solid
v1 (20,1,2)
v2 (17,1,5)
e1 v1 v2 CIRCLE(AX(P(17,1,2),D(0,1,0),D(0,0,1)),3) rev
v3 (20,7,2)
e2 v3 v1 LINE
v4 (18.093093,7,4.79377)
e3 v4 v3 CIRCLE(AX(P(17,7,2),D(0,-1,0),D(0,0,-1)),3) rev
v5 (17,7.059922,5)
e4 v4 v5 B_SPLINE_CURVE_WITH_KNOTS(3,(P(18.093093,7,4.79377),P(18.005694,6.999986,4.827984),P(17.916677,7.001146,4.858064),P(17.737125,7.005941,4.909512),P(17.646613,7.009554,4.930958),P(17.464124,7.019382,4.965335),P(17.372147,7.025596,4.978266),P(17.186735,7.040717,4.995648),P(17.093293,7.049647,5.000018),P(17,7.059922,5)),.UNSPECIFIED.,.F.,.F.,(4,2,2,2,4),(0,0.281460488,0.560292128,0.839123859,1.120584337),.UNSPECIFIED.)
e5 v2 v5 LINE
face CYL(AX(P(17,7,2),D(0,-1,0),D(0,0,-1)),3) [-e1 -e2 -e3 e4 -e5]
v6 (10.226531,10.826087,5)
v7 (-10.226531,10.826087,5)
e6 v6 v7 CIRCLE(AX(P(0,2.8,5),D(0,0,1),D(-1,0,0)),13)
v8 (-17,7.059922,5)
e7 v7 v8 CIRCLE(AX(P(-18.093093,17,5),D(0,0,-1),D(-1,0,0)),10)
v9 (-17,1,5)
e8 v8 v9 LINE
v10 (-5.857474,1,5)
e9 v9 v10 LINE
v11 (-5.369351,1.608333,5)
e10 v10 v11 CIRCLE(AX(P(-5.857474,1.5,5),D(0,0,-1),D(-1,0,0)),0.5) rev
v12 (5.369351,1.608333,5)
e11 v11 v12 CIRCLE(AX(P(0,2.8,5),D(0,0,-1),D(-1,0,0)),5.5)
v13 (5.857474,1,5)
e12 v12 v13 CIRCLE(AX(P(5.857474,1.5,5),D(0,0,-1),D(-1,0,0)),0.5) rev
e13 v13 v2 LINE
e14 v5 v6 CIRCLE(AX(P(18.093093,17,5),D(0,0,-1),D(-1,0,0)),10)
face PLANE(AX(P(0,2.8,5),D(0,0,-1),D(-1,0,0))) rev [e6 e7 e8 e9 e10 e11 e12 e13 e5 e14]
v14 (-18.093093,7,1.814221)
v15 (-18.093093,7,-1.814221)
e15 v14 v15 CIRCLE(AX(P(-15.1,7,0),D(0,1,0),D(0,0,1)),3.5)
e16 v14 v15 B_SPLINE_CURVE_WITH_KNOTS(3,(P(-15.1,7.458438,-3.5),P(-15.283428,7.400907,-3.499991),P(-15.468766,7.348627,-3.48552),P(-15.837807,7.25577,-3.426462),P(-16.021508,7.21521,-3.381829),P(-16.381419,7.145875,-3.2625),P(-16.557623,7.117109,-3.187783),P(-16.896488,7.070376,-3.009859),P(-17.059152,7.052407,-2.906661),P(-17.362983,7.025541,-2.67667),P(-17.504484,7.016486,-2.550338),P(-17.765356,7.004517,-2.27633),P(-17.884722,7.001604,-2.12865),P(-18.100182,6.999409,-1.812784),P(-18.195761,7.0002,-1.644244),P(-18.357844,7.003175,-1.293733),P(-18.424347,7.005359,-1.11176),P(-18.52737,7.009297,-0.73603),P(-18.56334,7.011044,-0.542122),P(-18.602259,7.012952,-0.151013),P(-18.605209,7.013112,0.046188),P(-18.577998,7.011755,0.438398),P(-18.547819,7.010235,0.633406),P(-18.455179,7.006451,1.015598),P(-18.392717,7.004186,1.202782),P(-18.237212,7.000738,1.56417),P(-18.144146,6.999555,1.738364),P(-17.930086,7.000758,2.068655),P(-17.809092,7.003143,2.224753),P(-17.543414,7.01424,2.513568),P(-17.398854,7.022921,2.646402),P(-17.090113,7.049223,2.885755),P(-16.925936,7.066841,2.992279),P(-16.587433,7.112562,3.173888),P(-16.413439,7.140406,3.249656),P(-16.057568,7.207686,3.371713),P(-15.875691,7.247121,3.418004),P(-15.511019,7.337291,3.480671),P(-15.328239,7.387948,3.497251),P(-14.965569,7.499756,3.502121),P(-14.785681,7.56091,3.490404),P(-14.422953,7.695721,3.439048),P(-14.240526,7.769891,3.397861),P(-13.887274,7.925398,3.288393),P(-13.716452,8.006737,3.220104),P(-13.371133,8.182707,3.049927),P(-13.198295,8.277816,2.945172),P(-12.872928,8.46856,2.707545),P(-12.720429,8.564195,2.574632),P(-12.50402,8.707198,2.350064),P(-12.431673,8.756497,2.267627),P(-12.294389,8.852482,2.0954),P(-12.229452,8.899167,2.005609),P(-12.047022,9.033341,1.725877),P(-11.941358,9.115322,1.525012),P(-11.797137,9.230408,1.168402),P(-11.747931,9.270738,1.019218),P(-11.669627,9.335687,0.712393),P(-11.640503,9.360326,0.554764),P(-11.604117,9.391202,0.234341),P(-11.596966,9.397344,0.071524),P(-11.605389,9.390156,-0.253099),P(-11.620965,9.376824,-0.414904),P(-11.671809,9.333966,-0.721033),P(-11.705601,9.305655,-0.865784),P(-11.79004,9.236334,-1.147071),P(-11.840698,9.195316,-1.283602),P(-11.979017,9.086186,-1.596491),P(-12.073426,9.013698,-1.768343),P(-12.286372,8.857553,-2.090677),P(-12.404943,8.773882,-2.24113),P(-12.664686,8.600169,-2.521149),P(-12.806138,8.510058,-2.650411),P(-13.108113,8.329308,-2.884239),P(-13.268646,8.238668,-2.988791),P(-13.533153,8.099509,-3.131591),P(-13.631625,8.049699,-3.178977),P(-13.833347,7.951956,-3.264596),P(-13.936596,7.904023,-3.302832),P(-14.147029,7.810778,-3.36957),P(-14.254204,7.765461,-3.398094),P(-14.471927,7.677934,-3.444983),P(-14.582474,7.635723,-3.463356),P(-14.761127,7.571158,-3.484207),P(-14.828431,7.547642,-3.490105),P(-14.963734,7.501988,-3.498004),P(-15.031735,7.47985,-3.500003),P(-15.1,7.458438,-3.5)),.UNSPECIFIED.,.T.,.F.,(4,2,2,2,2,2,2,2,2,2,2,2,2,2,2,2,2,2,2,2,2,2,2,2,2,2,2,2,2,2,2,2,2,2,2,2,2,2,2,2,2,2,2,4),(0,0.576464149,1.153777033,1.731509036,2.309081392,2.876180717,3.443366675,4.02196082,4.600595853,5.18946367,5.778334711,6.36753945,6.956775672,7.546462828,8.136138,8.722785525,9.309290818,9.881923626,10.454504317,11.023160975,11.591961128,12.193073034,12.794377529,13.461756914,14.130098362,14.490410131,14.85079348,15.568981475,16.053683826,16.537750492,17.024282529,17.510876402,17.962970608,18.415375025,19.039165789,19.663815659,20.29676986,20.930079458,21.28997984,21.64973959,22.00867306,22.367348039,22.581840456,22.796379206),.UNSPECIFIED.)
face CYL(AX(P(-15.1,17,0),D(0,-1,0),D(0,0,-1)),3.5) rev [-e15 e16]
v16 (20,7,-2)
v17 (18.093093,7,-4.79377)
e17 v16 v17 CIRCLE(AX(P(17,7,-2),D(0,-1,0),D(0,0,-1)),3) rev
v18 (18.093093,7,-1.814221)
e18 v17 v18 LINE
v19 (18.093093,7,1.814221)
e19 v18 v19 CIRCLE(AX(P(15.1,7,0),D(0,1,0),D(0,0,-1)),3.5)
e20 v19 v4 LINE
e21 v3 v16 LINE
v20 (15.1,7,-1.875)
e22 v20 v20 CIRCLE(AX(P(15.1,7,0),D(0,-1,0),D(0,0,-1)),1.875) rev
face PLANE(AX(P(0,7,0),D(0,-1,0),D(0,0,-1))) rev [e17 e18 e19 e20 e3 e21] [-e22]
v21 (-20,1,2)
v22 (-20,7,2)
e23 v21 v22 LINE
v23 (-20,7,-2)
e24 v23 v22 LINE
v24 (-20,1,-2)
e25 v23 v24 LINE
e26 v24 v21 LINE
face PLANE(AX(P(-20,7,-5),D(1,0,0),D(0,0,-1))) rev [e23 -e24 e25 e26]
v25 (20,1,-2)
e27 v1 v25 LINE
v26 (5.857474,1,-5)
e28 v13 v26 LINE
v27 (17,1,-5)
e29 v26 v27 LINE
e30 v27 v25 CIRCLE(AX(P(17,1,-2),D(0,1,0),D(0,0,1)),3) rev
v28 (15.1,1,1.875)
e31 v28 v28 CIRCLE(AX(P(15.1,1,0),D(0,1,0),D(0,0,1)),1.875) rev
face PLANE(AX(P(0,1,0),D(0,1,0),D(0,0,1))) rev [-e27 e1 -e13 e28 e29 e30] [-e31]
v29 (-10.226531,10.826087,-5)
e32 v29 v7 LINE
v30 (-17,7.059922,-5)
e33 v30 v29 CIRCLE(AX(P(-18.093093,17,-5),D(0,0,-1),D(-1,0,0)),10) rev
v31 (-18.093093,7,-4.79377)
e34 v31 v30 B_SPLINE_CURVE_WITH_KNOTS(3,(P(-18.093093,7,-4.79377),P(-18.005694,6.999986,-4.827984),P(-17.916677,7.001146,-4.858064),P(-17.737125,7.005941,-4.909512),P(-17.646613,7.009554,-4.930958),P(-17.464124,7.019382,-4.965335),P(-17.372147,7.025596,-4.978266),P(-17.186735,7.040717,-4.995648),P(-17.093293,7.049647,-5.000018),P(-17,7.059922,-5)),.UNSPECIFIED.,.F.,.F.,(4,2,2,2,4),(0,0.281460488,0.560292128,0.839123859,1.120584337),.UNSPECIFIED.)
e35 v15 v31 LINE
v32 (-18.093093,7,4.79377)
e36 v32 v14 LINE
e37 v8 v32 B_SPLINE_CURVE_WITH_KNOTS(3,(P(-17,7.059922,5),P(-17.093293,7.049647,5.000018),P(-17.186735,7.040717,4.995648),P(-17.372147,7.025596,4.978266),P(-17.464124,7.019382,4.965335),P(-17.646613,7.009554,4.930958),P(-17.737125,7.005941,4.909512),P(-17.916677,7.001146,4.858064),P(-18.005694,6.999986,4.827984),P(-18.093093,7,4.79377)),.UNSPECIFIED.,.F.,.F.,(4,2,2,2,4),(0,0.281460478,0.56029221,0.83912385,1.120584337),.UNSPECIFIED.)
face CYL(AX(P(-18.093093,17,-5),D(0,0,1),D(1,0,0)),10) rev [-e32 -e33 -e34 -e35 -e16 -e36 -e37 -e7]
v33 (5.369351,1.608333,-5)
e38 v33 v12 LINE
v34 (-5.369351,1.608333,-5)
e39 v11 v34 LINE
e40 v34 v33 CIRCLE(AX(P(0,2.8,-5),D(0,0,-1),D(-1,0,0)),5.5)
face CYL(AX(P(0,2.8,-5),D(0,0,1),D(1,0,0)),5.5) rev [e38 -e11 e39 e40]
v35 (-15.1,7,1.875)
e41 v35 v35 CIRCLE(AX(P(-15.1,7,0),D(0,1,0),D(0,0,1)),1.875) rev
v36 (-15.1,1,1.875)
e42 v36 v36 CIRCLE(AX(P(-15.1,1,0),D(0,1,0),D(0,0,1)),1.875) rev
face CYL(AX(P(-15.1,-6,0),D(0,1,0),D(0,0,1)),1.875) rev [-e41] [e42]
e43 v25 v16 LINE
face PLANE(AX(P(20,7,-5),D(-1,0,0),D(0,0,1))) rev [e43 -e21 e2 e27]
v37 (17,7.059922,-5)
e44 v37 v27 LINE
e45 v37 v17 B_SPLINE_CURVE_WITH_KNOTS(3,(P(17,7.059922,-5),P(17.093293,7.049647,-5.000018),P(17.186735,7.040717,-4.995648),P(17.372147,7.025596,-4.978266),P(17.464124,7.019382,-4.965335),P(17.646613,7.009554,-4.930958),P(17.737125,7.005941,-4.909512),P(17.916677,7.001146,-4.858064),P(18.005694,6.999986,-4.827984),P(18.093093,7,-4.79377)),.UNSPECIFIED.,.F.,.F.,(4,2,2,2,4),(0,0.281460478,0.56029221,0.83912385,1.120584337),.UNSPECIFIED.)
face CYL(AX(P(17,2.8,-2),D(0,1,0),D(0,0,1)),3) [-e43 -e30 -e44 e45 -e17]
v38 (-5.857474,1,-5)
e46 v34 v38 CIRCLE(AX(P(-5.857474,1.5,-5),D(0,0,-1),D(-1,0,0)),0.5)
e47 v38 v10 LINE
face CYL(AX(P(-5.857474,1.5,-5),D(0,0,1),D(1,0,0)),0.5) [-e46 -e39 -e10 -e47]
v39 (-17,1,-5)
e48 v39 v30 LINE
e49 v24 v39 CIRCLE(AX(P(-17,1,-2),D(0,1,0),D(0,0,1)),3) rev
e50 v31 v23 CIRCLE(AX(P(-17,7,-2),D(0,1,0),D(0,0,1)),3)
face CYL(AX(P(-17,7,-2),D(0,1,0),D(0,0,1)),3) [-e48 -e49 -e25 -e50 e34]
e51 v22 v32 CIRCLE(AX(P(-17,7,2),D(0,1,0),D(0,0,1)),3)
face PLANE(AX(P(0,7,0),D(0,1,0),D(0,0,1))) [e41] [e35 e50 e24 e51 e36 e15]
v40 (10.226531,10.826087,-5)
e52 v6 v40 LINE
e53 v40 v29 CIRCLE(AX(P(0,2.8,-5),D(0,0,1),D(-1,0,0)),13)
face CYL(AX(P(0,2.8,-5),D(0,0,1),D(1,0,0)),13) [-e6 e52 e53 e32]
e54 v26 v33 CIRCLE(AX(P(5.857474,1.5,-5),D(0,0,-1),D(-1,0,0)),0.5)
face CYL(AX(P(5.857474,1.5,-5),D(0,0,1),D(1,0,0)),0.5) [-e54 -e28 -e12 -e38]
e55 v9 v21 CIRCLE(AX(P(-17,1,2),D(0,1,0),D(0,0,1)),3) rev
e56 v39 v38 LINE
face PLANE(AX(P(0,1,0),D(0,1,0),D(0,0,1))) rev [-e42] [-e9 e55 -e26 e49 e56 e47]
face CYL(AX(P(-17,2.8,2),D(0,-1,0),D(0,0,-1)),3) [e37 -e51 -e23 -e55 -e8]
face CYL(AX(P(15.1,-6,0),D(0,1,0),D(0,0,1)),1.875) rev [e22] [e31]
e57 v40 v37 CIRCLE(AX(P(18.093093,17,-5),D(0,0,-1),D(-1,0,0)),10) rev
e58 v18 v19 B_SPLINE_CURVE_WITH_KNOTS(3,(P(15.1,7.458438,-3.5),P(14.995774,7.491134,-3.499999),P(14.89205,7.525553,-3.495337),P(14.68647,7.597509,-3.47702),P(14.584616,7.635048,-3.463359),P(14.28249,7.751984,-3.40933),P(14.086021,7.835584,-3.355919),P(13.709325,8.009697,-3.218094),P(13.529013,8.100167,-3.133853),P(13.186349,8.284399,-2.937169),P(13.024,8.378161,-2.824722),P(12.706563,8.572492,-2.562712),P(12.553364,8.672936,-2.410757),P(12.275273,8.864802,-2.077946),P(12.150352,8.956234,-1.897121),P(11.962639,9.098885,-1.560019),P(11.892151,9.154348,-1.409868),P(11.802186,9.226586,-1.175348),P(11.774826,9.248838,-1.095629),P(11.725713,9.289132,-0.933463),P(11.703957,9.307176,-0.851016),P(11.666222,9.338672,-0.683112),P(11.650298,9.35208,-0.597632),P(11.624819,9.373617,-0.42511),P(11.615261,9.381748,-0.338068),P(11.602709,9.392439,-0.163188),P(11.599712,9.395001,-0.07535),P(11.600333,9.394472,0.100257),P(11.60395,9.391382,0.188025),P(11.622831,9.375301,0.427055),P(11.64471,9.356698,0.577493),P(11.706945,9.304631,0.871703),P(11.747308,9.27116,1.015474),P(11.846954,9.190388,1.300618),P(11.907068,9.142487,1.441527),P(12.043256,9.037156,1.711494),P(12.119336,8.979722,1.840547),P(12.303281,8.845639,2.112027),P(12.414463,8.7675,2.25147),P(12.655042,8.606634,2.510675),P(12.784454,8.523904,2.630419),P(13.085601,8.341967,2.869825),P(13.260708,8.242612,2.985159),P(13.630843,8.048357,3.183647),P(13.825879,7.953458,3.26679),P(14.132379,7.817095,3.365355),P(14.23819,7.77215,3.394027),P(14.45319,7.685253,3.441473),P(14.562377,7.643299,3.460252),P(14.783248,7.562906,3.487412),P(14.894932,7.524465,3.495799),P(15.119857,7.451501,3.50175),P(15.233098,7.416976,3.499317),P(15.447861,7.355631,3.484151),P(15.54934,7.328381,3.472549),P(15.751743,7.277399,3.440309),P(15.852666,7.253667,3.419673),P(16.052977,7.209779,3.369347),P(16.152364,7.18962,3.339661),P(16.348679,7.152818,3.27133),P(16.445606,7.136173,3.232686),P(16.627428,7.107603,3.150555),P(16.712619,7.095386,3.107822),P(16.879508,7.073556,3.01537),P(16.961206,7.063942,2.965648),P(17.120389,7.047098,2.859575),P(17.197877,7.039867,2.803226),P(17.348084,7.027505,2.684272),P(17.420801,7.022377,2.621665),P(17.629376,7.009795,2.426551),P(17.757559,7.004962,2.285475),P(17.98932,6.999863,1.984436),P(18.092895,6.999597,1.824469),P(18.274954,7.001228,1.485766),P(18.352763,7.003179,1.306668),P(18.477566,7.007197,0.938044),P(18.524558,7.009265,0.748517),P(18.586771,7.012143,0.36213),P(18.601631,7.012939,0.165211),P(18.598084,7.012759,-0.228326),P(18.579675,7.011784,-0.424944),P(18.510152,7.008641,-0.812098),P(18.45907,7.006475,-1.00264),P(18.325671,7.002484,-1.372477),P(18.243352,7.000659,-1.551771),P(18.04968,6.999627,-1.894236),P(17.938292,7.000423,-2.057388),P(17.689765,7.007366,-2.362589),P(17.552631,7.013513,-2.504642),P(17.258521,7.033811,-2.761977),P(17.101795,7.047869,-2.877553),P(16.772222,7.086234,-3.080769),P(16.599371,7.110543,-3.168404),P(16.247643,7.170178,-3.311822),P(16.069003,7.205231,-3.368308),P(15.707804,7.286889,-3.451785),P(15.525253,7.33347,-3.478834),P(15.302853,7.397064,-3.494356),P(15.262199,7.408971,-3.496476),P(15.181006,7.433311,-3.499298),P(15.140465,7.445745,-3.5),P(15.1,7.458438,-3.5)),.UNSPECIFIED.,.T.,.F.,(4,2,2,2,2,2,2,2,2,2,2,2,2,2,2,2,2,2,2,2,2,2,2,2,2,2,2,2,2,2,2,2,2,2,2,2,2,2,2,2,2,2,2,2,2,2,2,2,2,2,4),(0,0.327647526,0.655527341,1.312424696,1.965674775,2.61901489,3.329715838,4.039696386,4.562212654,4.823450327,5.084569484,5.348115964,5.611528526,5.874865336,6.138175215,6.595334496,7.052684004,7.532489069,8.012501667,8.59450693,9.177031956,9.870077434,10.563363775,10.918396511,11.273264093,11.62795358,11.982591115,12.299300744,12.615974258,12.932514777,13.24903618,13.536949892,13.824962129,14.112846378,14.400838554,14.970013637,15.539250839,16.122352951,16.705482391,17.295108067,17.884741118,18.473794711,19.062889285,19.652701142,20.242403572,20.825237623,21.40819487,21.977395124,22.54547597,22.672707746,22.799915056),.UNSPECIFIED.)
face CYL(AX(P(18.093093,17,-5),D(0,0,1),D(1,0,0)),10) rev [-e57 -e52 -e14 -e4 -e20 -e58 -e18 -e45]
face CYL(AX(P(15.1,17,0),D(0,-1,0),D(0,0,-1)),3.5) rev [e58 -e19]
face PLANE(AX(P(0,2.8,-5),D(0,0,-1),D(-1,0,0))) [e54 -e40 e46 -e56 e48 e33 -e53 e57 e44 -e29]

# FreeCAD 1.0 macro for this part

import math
import FreeCAD as App
import Part
import Sketcher


def edges_at(feature, points):
    """Names of the edges that pass closest to the given points."""
    edges = feature.Shape.Edges
    near = lambda p: min(range(len(edges)), key=lambda i: edges[i].distToShape(Part.Vertex(*p))[0])
    return sorted({f"Edge{near(p) + 1}" for p in points})


def add_polygon(sketch, points):
    """Adds a closed chain of lines whose ends are joined by coincident constraints."""
    first, n = sketch.GeometryCount, len(points)
    for a, b in zip(points, points[1:] + points[:1]):
        sketch.addGeometry(Part.LineSegment(App.Vector(*a, 0), App.Vector(*b, 0)), False)
    for i in range(n):
        sketch.addConstraint(Sketcher.Constraint("Coincident", first + i, 2, first + (i + 1) % n, 1))

doc = App.newDocument("Part")
body = doc.addObject("PartDesign::Body", "Body")

# Sketch on XZ plane
sketch1 = body.newObject("Sketcher::SketchObject", "Sketch")
sketch1.AttachmentSupport = (doc.getObject("XZ_Plane"), [""])
sketch1.MapMode = "FlatFace"
sketch1.AttachmentOffset = App.Placement(App.Vector(0, 0, 1), App.Rotation())
add_polygon(sketch1, [(-20, -5), (-20, 5), (20, 5), (20, -5)])  # lines 0-3
sketch1.addConstraint(Sketcher.Constraint("Vertical", 0))
sketch1.addConstraint(Sketcher.Constraint("Horizontal", 1))
sketch1.addConstraint(Sketcher.Constraint("Vertical", 2))
sketch1.addConstraint(Sketcher.Constraint("Horizontal", 3))
sketch1.addConstraint(Sketcher.Constraint("Symmetric", 0, 2, 2, 2, -1, 1))
sketch1.addConstraint(Sketcher.Constraint("DistanceX", 1, 1, 1, 2, 40.0))
sketch1.addConstraint(Sketcher.Constraint("DistanceY", 0, 1, 0, 2, 10.0))
pad1 = body.newObject("PartDesign::Pad", "Pad")
pad1.Profile = sketch1
pad1.Length = 5
doc.recompute()

fillet = body.newObject("PartDesign::Fillet", "Fillet")
fillet.Base = (pad1, edges_at(pad1, [
    (20, -3.5, 5),
    (-20, -3.5, 5),
    (-20, -3.5, -5),
    (20, -3.5, -5),
]))
fillet.Radius = 3
body2 = doc.addObject("PartDesign::Body", "Body001")

# Sketch on XY plane
sketch2 = body2.newObject("Sketcher::SketchObject", "Sketch001")
sketch2.AttachmentSupport = (doc.getObject("XY_Plane001"), [""])
sketch2.MapMode = "FlatFace"
sketch2.addGeometry(Part.LineSegment(App.Vector(-13, 0, 0), App.Vector(-5, 0, 0)), False)
sketch2.addGeometry(Part.ArcOfCircle(Part.Circle(App.Vector(0, 3, 0), App.Vector(0, 0, 1), 6), math.radians(-31), math.radians(211)), False)
sketch2.addGeometry(Part.LineSegment(App.Vector(5, 0, 0), App.Vector(13, 0, 0)), False)
sketch2.addGeometry(Part.ArcOfCircle(Part.Circle(App.Vector(0, 3, 0), App.Vector(0, 0, 1), 13), math.radians(-12), math.radians(192)), False)
sketch2.addConstraint(Sketcher.Constraint("Coincident", 0, 2, 1, 2))
sketch2.addConstraint(Sketcher.Constraint("Coincident", 1, 1, 2, 1))
sketch2.addConstraint(Sketcher.Constraint("Coincident", 2, 2, 3, 1))
sketch2.addConstraint(Sketcher.Constraint("Coincident", 3, 2, 0, 1))
sketch2.addConstraint(Sketcher.Constraint("Horizontal", 0))
sketch2.addConstraint(Sketcher.Constraint("Horizontal", 2))
sketch2.addConstraint(Sketcher.Constraint("Coincident", 3, 3, 1, 3))
sketch2.addConstraint(Sketcher.Constraint("Symmetric", 0, 2, 1, 1, -1, 1))
sketch2.addConstraint(Sketcher.Constraint("PointOnObject", 1, 3, -2))
sketch2.addConstraint(Sketcher.Constraint("Radius", 3, 13.0))
sketch2.addConstraint(Sketcher.Constraint("Radius", 1, 5.5))
sketch2.addConstraint(Sketcher.Constraint("DistanceY", -1, 1, 1, 3, 2.8))
pad2 = body2.newObject("PartDesign::Pad", "Pad001")
pad2.Profile = sketch2
pad2.Type = "TwoLengths"
pad2.Length = 5
pad2.Length2 = 5

# Sketch on XZ plane
sketch3 = body2.newObject("Sketcher::SketchObject", "Sketch002")
sketch3.AttachmentSupport = (doc.getObject("XZ_Plane001"), [""])
sketch3.MapMode = "FlatFace"
add_polygon(sketch3, [(-20, -5), (-20, 5), (-10, 5), (-10, -5)])  # lines 0-3
add_polygon(sketch3, [(10, -5), (10, 5), (20, 5), (20, -5)])  # lines 4-7
sketch3.addConstraint(Sketcher.Constraint("Vertical", 0))
sketch3.addConstraint(Sketcher.Constraint("Horizontal", 1))
sketch3.addConstraint(Sketcher.Constraint("Vertical", 2))
sketch3.addConstraint(Sketcher.Constraint("Horizontal", 3))
sketch3.addConstraint(Sketcher.Constraint("Vertical", 4))
sketch3.addConstraint(Sketcher.Constraint("Horizontal", 5))
sketch3.addConstraint(Sketcher.Constraint("Vertical", 6))
sketch3.addConstraint(Sketcher.Constraint("Horizontal", 7))
sketch3.addConstraint(Sketcher.Constraint("Symmetric", 2, 2, 4, 2, -1, 1))
sketch3.addConstraint(Sketcher.Constraint("Symmetric", 0, 2, 6, 2, -1, 1))
sketch3.addConstraint(Sketcher.Constraint("Horizontal", 1, 2, 4, 2))
sketch3.addConstraint(Sketcher.Constraint("Equal", 7, 0))
sketch3.addConstraint(Sketcher.Constraint("DistanceX", 1, 1, 1, 2, 10.0))
sketch3.addConstraint(Sketcher.Constraint("DistanceX", 0, 2, -1, 1, 20.0))
pad3 = body2.newObject("PartDesign::Pad", "Pad002")
pad3.Profile = sketch3
pad3.Length = 7
pad3.Reversed = True
doc.recompute()

fillet2 = body2.newObject("PartDesign::Fillet", "Fillet001")
fillet2.Base = (pad3, edges_at(pad3, [
    (-20, 3.5, -5),
    (-20, 3.5, 5),
    (20, 3.5, 5),
    (20, 3.5, -5),
]))
fillet2.Radius = 3
doc.recompute()

fillet3 = body2.newObject("PartDesign::Fillet", "Fillet002")
fillet3.Base = (fillet2, edges_at(fillet2, [(12.303, 7, 0), (-12.303, 7, 0)]))
fillet3.Radius = 10
body3 = doc.addObject("PartDesign::Body", "Body002")
body3.AllowCompound = True

# Sketch on XZ plane
sketch4 = body3.newObject("Sketcher::SketchObject", "Sketch003")
sketch4.AttachmentSupport = (doc.getObject("XZ_Plane002"), [""])
sketch4.MapMode = "FlatFace"
sketch4.addGeometry(Part.Circle(App.Vector(-15.1, 0, 0), App.Vector(0, 0, 1), 1.9), False)
sketch4.addGeometry(Part.Circle(App.Vector(15.1, 0, 0), App.Vector(0, 0, 1), 1.9), False)
sketch4.addConstraint(Sketcher.Constraint("Equal", 0, 1))
sketch4.addConstraint(Sketcher.Constraint("Symmetric", 0, 3, 1, 3, -1, 1))
sketch4.addConstraint(Sketcher.Constraint("PointOnObject", 0, 3, -1))
sketch4.addConstraint(Sketcher.Constraint("Diameter", 0, 3.75))
sketch4.addConstraint(Sketcher.Constraint("DistanceX", 0, 3, -1, 1, 15.1))
pad4 = body3.newObject("PartDesign::Pad", "Pad003")
pad4.Profile = sketch4
pad4.Type = "TwoLengths"
pad4.Length = 26.973833
pad4.Length2 = 26.973833
pad4.Reversed = True
doc.recompute()

body4 = doc.addObject("PartDesign::Body", "Body003")
body4.BaseFeature = body3
boolean = body.newObject("PartDesign::Boolean", "Boolean")
boolean.Type = "Cut"
boolean.addObjects([body4])
doc.recompute()

# Sketch on XZ plane
sketch5 = body.newObject("Sketcher::SketchObject", "Sketch004")
sketch5.AttachmentSupport = (doc.getObject("XZ_Plane"), [""])
sketch5.MapMode = "FlatFace"
add_polygon(sketch5, [(-28, -10), (-28, 13), (24, 13), (24, -10)])  # lines 0-3
sketch5.addConstraint(Sketcher.Constraint("Vertical", 0))
sketch5.addConstraint(Sketcher.Constraint("Horizontal", 1))
sketch5.addConstraint(Sketcher.Constraint("Vertical", 2))
sketch5.addConstraint(Sketcher.Constraint("Horizontal", 3))
sketch5.addConstraint(Sketcher.Constraint("DistanceY", 0, 1, 0, 2, 23.044769))
sketch5.addConstraint(Sketcher.Constraint("DistanceX", 1, 1, 1, 2, 51.703076))
sketch5.addConstraint(Sketcher.Constraint("DistanceX", 0, 2, -1, 1, 27.54486))
sketch5.addConstraint(Sketcher.Constraint("DistanceY", -1, 1, 0, 2, 13.243824))
pocket1 = body.newObject("PartDesign::Pocket", "Pocket")
pocket1.Profile = sketch5
pocket1.Type = "ThroughAll"
pocket1.Reversed = True
doc.recompute()

boolean2 = body2.newObject("PartDesign::Boolean", "Boolean001")
boolean2.Type = "Cut"
boolean2.addObjects([body3])

# Sketch on XZ plane
sketch6 = body2.newObject("Sketcher::SketchObject", "Sketch005")
sketch6.AttachmentSupport = (doc.getObject("XZ_Plane001"), [""])
sketch6.MapMode = "FlatFace"
sketch6.AttachmentOffset = App.Placement(App.Vector(0, 0, -7), App.Rotation())
sketch6.addGeometry(Part.Circle(App.Vector(-15.1, 0, 0), App.Vector(0, 0, 1), 3.5), False)
sketch6.addGeometry(Part.Circle(App.Vector(15.1, 0, 0), App.Vector(0, 0, 1), 3.5), False)
sketch6.addConstraint(Sketcher.Constraint("Equal", 0, 1))
sketch6.addConstraint(Sketcher.Constraint("Symmetric", 0, 3, 1, 3, -1, 1))
sketch6.addConstraint(Sketcher.Constraint("PointOnObject", 0, 3, -1))
sketch6.addConstraint(Sketcher.Constraint("Diameter", 0, 7.0))
sketch6.addConstraint(Sketcher.Constraint("DistanceX", 0, 3, -1, 1, 15.1))
pocket2 = body2.newObject("PartDesign::Pocket", "Pocket001")
pocket2.Profile = sketch6
pocket2.Length = 10

# Sketch on XZ plane
sketch7 = body2.newObject("Sketcher::SketchObject", "Sketch006")
sketch7.AttachmentSupport = (doc.getObject("XZ_Plane001"), [""])
sketch7.MapMode = "FlatFace"
add_polygon(sketch7, [(-21, -12), (-21, 12), (26, 12), (26, -12)])  # lines 0-3
sketch7.addConstraint(Sketcher.Constraint("Vertical", 0))
sketch7.addConstraint(Sketcher.Constraint("Horizontal", 1))
sketch7.addConstraint(Sketcher.Constraint("Vertical", 2))
sketch7.addConstraint(Sketcher.Constraint("Horizontal", 3))
sketch7.addConstraint(Sketcher.Constraint("DistanceX", 1, 1, 1, 2, 47.094451))
sketch7.addConstraint(Sketcher.Constraint("DistanceY", 0, 1, 0, 2, 23.336565))
sketch7.addConstraint(Sketcher.Constraint("DistanceX", 0, 2, -1, 1, 21.46573))
sketch7.addConstraint(Sketcher.Constraint("DistanceY", 2, 2, -1, 1, 11.672419))
pocket3 = body2.newObject("PartDesign::Pocket", "Pocket002")
pocket3.Profile = sketch7
pocket3.Length = 1
doc.recompute()

fillet4 = body2.newObject("PartDesign::Fillet", "Fillet003")
fillet4.Base = (pocket3, edges_at(pocket3, [(-5.197, 1, 0), (5.197, 1, 0)]))
fillet4.Radius = 0.5

doc.recompute()
